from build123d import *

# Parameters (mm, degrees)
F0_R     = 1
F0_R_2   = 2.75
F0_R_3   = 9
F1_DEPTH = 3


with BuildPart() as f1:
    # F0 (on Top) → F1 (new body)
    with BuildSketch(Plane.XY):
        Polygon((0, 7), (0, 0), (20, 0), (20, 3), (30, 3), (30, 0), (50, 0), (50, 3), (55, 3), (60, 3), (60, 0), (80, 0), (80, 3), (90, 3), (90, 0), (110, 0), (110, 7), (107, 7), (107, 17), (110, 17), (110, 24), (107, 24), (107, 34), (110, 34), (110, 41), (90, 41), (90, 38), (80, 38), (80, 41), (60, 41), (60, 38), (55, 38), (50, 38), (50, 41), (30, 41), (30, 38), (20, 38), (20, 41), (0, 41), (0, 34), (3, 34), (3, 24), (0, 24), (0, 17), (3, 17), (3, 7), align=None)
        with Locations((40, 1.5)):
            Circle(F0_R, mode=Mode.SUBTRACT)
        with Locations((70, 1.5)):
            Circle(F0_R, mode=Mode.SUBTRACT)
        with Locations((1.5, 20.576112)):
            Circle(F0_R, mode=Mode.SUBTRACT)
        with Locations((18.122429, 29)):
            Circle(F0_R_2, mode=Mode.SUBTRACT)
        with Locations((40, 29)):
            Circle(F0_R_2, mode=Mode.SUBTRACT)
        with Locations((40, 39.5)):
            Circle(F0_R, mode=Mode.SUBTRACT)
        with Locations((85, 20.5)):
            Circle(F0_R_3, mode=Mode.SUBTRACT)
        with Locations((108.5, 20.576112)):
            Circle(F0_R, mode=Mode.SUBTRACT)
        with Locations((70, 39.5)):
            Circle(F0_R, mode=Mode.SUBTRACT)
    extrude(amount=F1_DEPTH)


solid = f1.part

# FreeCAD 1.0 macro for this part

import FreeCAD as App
import Part
import Sketcher


def add_polygon(sketch, points):
    """Adds a closed chain of lines whose ends are joined by coincident constraints."""
    first, n = sketch.GeometryCount, len(points)
    for a, b in zip(points, points[1:] + points[:1]):
        sketch.addGeometry(Part.LineSegment(App.Vector(*a, 0), App.Vector(*b, 0)), False)
    for i in range(n):
        sketch.addConstraint(Sketcher.Constraint("Coincident", first + i, 2, first + (i + 1) % n, 1))

doc = App.newDocument("Part")
body = doc.addObject("PartDesign::Body", "Body")

# Sketch on XY plane
sketch1 = body.newObject("Sketcher::SketchObject", "Sketch")
sketch1.AttachmentSupport = (doc.getObject("XY_Plane"), [""])
sketch1.MapMode = "FlatFace"
add_polygon(sketch1, [(0, 7), (0, 0), (20, 0), (20, 3), (30, 3), (30, 0), (50, 0), (50, 3), (60, 3), (60, 0), (80, 0), (80, 3), (90, 3), (90, 0), (110, 0), (110, 7), (107, 7), (107, 17), (110, 17), (110, 24), (107, 24), (107, 34), (110, 34), (110, 41), (90, 41), (90, 38), (80, 38), (80, 41), (60, 41), (60, 38), (50, 38), (50, 41), (30, 41), (30, 38), (20, 38), (20, 41), (0, 41), (0, 34), (3, 34), (3, 24), (0, 24), (0, 17), (3, 17), (3, 7)])  # lines 0-43
sketch1.addGeometry(Part.Circle(App.Vector(40, 1.5, 0), App.Vector(0, 0, 1), 1), False)  # 44
sketch1.addGeometry(Part.Circle(App.Vector(70, 1.5, 0), App.Vector(0, 0, 1), 1), False)  # 45
sketch1.addGeometry(Part.Circle(App.Vector(1.5, 20.6, 0), App.Vector(0, 0, 1), 1), False)  # 46
sketch1.addGeometry(Part.Circle(App.Vector(18.1, 29, 0), App.Vector(0, 0, 1), 2.8), False)  # 47
sketch1.addGeometry(Part.Circle(App.Vector(40, 29, 0), App.Vector(0, 0, 1), 2.8), False)  # 48
sketch1.addGeometry(Part.Circle(App.Vector(40, 39.5, 0), App.Vector(0, 0, 1), 1), False)  # 49
sketch1.addGeometry(Part.Circle(App.Vector(85, 20.5, 0), App.Vector(0, 0, 1), 9), False)  # 50
sketch1.addGeometry(Part.Circle(App.Vector(108.5, 20.6, 0), App.Vector(0, 0, 1), 1), False)  # 51
sketch1.addGeometry(Part.Circle(App.Vector(70, 39.5, 0), App.Vector(0, 0, 1), 1), False)  # 52
sketch1.addConstraint([
    Sketcher.Constraint("Vertical", 0),
    Sketcher.Constraint("Horizontal", 1),
    Sketcher.Constraint("Vertical", 2),
    Sketcher.Constraint("Horizontal", 3),
    Sketcher.Constraint("Vertical", 4),
    Sketcher.Constraint("Horizontal", 5),
    Sketcher.Constraint("Vertical", 6),
    Sketcher.Constraint("Horizontal", 7),
    Sketcher.Constraint("Vertical", 8),
    Sketcher.Constraint("Horizontal", 9),
    Sketcher.Constraint("Vertical", 10),
    Sketcher.Constraint("Horizontal", 11),
    Sketcher.Constraint("Vertical", 12),
    Sketcher.Constraint("Horizontal", 13),
    Sketcher.Constraint("Vertical", 14),
    Sketcher.Constraint("Horizontal", 15),
    Sketcher.Constraint("Vertical", 16),
    Sketcher.Constraint("Horizontal", 17),
    Sketcher.Constraint("Vertical", 18),
    Sketcher.Constraint("Horizontal", 19),
    Sketcher.Constraint("Vertical", 20),
    Sketcher.Constraint("Horizontal", 21),
    Sketcher.Constraint("Vertical", 22),
    Sketcher.Constraint("Horizontal", 23),
    Sketcher.Constraint("Vertical", 24),
    Sketcher.Constraint("Horizontal", 25),
    Sketcher.Constraint("Vertical", 26),
    Sketcher.Constraint("Horizontal", 27),
    Sketcher.Constraint("Vertical", 28),
    Sketcher.Constraint("Horizontal", 29),
    Sketcher.Constraint("Vertical", 30),
    Sketcher.Constraint("Horizontal", 31),
    Sketcher.Constraint("Vertical", 32),
    Sketcher.Constraint("Horizontal", 33),
    Sketcher.Constraint("Vertical", 34),
    Sketcher.Constraint("Horizontal", 35),
    Sketcher.Constraint("Vertical", 36),
    Sketcher.Constraint("Horizontal", 37),
    Sketcher.Constraint("Vertical", 38),
    Sketcher.Constraint("Horizontal", 39),
    Sketcher.Constraint("Vertical", 40),
    Sketcher.Constraint("Horizontal", 41),
    Sketcher.Constraint("Vertical", 42),
    Sketcher.Constraint("Horizontal", 43),
    Sketcher.Constraint("Coincident", 0, 2, -1, 1),
    Sketcher.Constraint("Equal", 44, 45),
    Sketcher.Constraint("Equal", 45, 46),
    Sketcher.Constraint("Equal", 47, 48),
    Sketcher.Constraint("Equal", 46, 49),
    Sketcher.Constraint("Equal", 49, 51),
    Sketcher.Constraint("Equal", 51, 52),
    Sketcher.Constraint("PointOnObject", 4, 2, -1),
    Sketcher.Constraint("PointOnObject", 8, 2, -1),
    Sketcher.Constraint("PointOnObject", 12, 2, -1),
    Sketcher.Constraint("PointOnObject", 35, 2, -2),
    Sketcher.Constraint("PointOnObject", 39, 2, -2),
    Sketcher.Constraint("Horizontal", 44, 3, 45, 3),
    Sketcher.Constraint("Horizontal", 47, 3, 48, 3),
    Sketcher.Constraint("Horizontal", 46, 3, 51, 3),
    Sketcher.Constraint("Horizontal", 49, 3, 52, 3),
    Sketcher.Constraint("Horizontal", 3, 2, 6, 2),
    Sketcher.Constraint("Horizontal", 7, 2, 10, 2),
    Sketcher.Constraint("Horizontal", 23, 2, 26, 2),
    Sketcher.Constraint("Horizontal", 25, 2, 28, 2),
    Sketcher.Constraint("Horizontal", 27, 2, 30, 2),
    Sketcher.Constraint("Horizontal", 29, 2, 32, 2),
    Sketcher.Constraint("Horizontal", 31, 2, 34, 2),
    Sketcher.Constraint("Horizontal", 21, 2, 36, 2),
    Sketcher.Constraint("Horizontal", 19, 2, 38, 2),
    Sketcher.Constraint("Horizontal", 17, 2, 40, 2),
    Sketcher.Constraint("Horizontal", 15, 2, 42, 2),
    Sketcher.Constraint("Vertical", 44, 3, 48, 3),
    Sketcher.Constraint("Vertical", 48, 3, 49, 3),
    Sketcher.Constraint("Vertical", 45, 3, 52, 3),
    Sketcher.Constraint("Vertical", 14, 2, 17, 2),
    Sketcher.Constraint("Vertical", 16, 2, 19, 2),
    Sketcher.Constraint("Vertical", 18, 2, 21, 2),
    Sketcher.Constraint("Vertical", 12, 2, 23, 2),
    Sketcher.Constraint("Vertical", 10, 2, 25, 2),
    Sketcher.Constraint("Vertical", 8, 2, 27, 2),
    Sketcher.Constraint("Vertical", 6, 2, 29, 2),
    Sketcher.Constraint("Vertical", 4, 2, 31, 2),
    Sketcher.Constraint("Vertical", 2, 2, 33, 2),
    Sketcher.Constraint("Vertical", 38, 2, 41, 2),
    Sketcher.Constraint("Equal", 1, 5),
    Sketcher.Constraint("Equal", 3, 7),
    Sketcher.Constraint("Equal", 5, 9),
    Sketcher.Constraint("Equal", 7, 11),
    Sketcher.Constraint("Equal", 9, 13),
    Sketcher.Constraint("Equal", 21, 37),
    Sketcher.Constraint("Equal", 43, 2),
    Sketcher.Constraint("Equal", 33, 16),
    Sketcher.Constraint("Equal", 14, 18),
    Sketcher.Constraint("Equal", 16, 20),
    Sketcher.Constraint("Equal", 18, 22),
    Sketcher.Constraint("Equal", 12, 24),
    Sketcher.Constraint("Diameter", 44, 2.0),
    Sketcher.Constraint("Diameter", 50, 18.0),
    Sketcher.Constraint("Diameter", 47, 5.5),
    Sketcher.Constraint("DistanceX", 1, 1, 1, 2, 20.0),
    Sketcher.Constraint("DistanceX", 3, 1, 3, 2, 10.0),
    Sketcher.Constraint("DistanceX", 15, 2, 15, 1, 3.0),
    Sketcher.Constraint("DistanceY", 0, 2, 0, 1, 7.0),
    Sketcher.Constraint("DistanceX", -1, 1, 44, 3, 40.0),
    Sketcher.Constraint("DistanceX", -1, 1, 45, 3, 70.0),
    Sketcher.Constraint("DistanceY", -1, 1, 47, 3, 29.0),
    Sketcher.Constraint("DistanceX", -1, 1, 50, 3, 85.0),
    Sketcher.Constraint("DistanceY", 44, 3, 49, 3, 38.0),
    Sketcher.Constraint("DistanceY", 45, 3, 50, 3, 19.0),
    Sketcher.Constraint("DistanceY", -1, 1, 44, 3, 1.5),
    Sketcher.Constraint("DistanceX", -1, 1, 46, 3, 1.5),
    Sketcher.Constraint("DistanceX", -1, 1, 51, 3, 108.5),
    Sketcher.Constraint("DistanceY", -1, 1, 46, 3, 20.576112),
    Sketcher.Constraint("DistanceX", -1, 1, 47, 3, 18.122429),
])
pad1 = body.newObject("PartDesign::Pad", "Pad")
pad1.Profile = sketch1
pad1.Length = 3

doc.recompute()
